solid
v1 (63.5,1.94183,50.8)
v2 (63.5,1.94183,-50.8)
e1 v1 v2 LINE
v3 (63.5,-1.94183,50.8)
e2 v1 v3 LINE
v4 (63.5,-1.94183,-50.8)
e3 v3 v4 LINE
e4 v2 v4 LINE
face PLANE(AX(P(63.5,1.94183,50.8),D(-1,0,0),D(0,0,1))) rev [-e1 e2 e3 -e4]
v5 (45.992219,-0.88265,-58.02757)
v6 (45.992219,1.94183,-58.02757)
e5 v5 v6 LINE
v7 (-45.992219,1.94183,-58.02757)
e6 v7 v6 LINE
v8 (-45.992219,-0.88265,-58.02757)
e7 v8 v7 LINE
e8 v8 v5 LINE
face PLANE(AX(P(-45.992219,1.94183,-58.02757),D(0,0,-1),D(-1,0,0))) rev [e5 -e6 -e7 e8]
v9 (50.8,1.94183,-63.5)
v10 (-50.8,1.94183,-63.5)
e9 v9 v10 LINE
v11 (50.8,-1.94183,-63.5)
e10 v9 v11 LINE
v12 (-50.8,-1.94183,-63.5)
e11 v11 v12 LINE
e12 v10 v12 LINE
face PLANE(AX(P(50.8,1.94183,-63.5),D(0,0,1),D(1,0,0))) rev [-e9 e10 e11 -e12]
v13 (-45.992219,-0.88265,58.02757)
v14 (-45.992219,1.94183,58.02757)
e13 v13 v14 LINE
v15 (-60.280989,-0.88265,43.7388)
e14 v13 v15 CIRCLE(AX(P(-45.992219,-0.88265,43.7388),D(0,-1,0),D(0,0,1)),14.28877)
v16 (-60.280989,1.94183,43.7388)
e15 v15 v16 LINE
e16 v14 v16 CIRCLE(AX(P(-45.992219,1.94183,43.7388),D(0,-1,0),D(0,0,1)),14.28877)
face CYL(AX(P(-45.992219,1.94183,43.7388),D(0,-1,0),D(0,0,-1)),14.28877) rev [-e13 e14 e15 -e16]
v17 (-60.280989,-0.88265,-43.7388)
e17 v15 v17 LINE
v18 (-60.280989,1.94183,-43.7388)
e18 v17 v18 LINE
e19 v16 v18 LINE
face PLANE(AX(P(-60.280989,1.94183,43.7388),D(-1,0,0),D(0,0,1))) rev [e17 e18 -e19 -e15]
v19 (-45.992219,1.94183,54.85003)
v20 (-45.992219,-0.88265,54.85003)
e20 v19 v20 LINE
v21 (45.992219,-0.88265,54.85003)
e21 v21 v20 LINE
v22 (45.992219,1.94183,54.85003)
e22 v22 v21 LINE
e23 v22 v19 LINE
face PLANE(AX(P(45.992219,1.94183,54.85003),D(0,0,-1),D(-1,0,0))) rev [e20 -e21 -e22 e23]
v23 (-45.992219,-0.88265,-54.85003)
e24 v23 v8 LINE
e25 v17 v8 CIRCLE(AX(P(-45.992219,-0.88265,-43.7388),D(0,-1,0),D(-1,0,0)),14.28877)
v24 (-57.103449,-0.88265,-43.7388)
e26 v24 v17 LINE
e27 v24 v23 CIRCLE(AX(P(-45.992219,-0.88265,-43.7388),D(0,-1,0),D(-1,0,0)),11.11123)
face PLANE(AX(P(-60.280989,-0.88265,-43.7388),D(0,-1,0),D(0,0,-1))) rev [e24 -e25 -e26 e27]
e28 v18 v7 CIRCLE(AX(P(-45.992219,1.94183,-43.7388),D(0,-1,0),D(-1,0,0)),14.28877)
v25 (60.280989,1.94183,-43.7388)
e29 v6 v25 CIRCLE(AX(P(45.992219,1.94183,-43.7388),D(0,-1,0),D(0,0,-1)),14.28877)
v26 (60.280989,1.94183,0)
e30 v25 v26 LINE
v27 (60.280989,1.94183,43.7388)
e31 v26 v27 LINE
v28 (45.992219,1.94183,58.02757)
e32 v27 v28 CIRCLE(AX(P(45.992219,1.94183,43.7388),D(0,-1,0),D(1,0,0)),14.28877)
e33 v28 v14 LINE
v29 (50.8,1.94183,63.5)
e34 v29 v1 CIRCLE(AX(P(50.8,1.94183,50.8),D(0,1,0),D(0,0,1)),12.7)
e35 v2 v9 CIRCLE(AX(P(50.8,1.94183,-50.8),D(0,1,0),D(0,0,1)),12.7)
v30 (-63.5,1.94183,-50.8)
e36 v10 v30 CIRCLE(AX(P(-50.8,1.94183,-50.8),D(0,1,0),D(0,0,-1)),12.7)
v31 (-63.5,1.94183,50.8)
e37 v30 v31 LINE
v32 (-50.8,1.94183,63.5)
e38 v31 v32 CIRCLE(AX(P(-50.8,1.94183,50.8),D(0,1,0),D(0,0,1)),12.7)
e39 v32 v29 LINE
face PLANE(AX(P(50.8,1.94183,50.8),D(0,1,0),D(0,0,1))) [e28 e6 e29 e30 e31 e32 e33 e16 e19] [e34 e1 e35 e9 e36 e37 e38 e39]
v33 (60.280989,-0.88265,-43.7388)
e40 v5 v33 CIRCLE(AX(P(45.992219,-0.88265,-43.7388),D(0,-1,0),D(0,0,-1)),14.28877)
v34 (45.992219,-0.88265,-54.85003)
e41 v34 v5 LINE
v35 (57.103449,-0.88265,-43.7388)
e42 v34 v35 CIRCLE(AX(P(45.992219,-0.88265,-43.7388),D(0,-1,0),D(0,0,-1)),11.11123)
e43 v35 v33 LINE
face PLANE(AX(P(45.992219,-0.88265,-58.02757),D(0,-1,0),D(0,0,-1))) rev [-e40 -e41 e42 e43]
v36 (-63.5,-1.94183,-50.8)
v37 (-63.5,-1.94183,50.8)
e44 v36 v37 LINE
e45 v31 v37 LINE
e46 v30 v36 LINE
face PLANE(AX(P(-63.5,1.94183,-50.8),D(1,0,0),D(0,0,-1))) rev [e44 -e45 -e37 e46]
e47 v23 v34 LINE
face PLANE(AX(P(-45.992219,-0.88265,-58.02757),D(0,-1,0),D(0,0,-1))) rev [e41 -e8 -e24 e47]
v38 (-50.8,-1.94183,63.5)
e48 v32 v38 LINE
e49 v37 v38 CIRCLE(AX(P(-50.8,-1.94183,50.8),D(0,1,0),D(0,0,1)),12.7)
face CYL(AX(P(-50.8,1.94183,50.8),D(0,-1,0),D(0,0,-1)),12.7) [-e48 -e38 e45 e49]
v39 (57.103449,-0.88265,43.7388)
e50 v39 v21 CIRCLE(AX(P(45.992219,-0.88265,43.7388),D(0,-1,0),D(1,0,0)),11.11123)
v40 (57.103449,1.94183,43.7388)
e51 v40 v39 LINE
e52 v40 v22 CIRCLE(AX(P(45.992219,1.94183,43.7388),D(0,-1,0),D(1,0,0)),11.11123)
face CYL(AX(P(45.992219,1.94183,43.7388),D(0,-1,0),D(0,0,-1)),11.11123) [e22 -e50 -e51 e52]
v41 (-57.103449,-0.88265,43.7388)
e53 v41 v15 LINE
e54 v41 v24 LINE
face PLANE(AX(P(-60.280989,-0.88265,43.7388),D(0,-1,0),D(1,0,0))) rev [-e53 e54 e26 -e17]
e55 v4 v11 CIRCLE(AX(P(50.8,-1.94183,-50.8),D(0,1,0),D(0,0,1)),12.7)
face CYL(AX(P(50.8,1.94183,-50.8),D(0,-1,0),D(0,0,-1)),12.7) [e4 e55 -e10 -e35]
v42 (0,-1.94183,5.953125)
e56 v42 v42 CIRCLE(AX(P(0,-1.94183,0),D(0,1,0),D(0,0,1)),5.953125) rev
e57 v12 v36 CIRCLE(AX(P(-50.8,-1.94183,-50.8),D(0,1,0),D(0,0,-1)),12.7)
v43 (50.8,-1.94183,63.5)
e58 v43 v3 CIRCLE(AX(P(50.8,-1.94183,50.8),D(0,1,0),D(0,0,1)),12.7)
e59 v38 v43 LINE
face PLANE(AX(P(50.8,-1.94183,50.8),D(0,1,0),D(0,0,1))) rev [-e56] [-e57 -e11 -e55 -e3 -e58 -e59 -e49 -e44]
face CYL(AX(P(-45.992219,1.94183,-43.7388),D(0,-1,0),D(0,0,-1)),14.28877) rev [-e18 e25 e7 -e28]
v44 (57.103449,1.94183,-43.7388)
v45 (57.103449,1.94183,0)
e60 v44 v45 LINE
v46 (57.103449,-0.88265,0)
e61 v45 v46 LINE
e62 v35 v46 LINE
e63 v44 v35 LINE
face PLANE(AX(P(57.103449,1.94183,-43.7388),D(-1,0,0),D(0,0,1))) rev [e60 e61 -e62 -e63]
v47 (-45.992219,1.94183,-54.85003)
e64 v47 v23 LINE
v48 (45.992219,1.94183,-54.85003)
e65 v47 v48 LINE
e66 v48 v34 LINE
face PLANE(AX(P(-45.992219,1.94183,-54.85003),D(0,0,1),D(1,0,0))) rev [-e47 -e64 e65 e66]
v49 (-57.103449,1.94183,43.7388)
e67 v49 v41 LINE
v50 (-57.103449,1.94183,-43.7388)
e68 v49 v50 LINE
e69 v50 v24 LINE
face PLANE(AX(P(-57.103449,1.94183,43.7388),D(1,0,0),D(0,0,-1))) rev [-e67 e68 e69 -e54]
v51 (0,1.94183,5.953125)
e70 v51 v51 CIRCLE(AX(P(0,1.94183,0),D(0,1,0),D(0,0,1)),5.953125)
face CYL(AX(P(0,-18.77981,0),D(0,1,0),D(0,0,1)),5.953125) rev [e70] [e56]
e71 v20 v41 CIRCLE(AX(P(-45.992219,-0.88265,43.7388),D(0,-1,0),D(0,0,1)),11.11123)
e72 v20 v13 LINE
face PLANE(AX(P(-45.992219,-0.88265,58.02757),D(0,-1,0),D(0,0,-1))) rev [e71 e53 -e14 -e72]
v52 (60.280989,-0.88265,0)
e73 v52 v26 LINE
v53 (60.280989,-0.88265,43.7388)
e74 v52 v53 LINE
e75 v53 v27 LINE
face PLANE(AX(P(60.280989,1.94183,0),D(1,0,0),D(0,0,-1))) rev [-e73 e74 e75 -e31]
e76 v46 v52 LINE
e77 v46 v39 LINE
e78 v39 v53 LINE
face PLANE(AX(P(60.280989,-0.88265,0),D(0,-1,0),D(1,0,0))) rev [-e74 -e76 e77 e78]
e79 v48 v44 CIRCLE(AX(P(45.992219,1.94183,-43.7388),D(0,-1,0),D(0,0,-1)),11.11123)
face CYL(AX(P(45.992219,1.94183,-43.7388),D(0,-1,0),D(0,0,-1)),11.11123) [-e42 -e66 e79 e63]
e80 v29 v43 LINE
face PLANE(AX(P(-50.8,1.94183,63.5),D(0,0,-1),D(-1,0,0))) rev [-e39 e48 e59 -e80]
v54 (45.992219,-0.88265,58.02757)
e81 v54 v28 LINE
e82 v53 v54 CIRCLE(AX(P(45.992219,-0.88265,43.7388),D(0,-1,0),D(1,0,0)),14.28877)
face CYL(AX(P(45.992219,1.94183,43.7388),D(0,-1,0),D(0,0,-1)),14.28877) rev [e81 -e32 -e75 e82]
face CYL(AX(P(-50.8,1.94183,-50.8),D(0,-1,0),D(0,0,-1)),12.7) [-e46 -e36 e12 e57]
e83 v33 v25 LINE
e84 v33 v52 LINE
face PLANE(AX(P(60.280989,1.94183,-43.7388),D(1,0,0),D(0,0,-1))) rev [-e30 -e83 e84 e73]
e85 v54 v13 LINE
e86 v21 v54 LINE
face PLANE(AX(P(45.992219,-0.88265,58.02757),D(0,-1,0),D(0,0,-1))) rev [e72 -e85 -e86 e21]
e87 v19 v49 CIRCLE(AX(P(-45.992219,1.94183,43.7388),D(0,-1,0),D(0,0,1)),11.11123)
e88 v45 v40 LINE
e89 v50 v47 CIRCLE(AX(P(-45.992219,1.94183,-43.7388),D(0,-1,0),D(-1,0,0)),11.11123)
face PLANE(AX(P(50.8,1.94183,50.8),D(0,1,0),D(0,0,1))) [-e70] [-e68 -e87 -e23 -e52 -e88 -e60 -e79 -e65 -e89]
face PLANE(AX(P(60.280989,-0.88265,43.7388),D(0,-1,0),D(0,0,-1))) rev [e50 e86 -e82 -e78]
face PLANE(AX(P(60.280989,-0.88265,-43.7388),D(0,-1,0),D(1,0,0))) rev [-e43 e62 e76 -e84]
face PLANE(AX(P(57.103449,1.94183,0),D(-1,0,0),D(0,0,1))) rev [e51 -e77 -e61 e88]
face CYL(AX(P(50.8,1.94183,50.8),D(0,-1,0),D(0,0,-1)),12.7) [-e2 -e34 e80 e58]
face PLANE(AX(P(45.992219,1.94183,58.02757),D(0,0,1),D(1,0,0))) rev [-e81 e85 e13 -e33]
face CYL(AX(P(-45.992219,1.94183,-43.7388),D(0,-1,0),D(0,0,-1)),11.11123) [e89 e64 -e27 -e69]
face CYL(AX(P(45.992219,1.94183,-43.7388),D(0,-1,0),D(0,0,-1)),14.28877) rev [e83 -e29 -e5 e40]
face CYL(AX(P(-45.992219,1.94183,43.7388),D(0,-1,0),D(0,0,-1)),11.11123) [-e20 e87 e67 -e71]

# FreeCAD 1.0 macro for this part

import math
import FreeCAD as App
import Part
import Sketcher

V = App.Vector
Q = App.Units.Quantity

doc = App.newDocument("Part")
body = doc.addObject("PartDesign::Body", "Body")

# Sketch on XZ plane
sketch1 = doc.addObject("Sketcher::SketchObject", "Sketch")
body.addObject(sketch1)
sketch1.AttachmentSupport = (doc.XZ_Plane, [""])
sketch1.MapMode = "FlatFace"
sketch1.addGeometry([
    Part.LineSegment(V(-64, -51, 0), V(-64, 51, 0)),  # 0
    Part.ArcOfCircle(Part.Circle(V(-51, 51, 0), V(0, 0, 1), 13), math.radians(90), math.radians(180)),  # 1
    Part.LineSegment(V(-51, 64, 0), V(51, 64, 0)),  # 2
    Part.ArcOfCircle(Part.Circle(V(51, 51, 0), V(0, 0, 1), 13), math.radians(0), math.radians(90)),  # 3
    Part.LineSegment(V(64, 51, 0), V(64, -51, 0)),  # 4
    Part.ArcOfCircle(Part.Circle(V(51, -51, 0), V(0, 0, 1), 13), math.radians(-90), math.radians(0)),  # 5
    Part.LineSegment(V(51, -64, 0), V(-51, -64, 0)),  # 6
    Part.ArcOfCircle(Part.Circle(V(-51, -51, 0), V(0, 0, 1), 13), math.radians(180), math.radians(270)),  # 7
], False)
sketch1.addConstraint([
    Sketcher.Constraint("Tangent", 0, 2, 1, 2),
    Sketcher.Constraint("Tangent", 1, 1, 2, 1),
    Sketcher.Constraint("Tangent", 2, 2, 3, 2),
    Sketcher.Constraint("Tangent", 3, 1, 4, 1),
    Sketcher.Constraint("Tangent", 4, 2, 5, 2),
    Sketcher.Constraint("Tangent", 5, 1, 6, 1),
    Sketcher.Constraint("Tangent", 6, 2, 7, 2),
    Sketcher.Constraint("Tangent", 7, 1, 0, 1),
    Sketcher.Constraint("Vertical", 0),
    Sketcher.Constraint("Horizontal", 2),
    Sketcher.Constraint("Vertical", 4),
    Sketcher.Constraint("Horizontal", 6),
    Sketcher.Constraint("Equal", 1, 3),
    Sketcher.Constraint("Equal", 3, 5),
    Sketcher.Constraint("Equal", 5, 7),
    Sketcher.Constraint("Symmetric", 1, 3, 5, 3, -1, 1),
    Sketcher.Constraint("Equal", 6, 0),
    Sketcher.Constraint("Radius", 1, Q("0.5 in")),
    Sketcher.Constraint("DistanceX", 2, 1, 2, 2, Q("4 in")),
])
pad1 = doc.addObject("PartDesign::Pad", "Pad")
body.addObject(pad1)
pad1.Profile = sketch1
pad1.Length = Q("0.1529 in")
pad1.Midplane = True

# Sketch on XZ plane
sketch2 = doc.addObject("Sketcher::SketchObject", "Sketch001")
body.addObject(sketch2)
sketch2.AttachmentSupport = (doc.XZ_Plane, [""])
sketch2.MapMode = "FlatFace"
sketch2.AttachmentOffset = App.Placement(V(0, 0, -1.94183), App.Rotation())
sketch2.addGeometry(Part.Circle(V(0, 0, 0), V(0, 0, 1), 6), False)
sketch2.addConstraint([
    Sketcher.Constraint("Coincident", 0, 3, -1, 1),
    Sketcher.Constraint("Diameter", 0, Q("0.46875 in")),
])
pocket1 = doc.addObject("PartDesign::Pocket", "Pocket")
body.addObject(pocket1)
pocket1.Profile = sketch2
pocket1.Length = Q("0.1529 in")
pocket1.Reversed = True

# Sketch on XY plane
sketch3 = doc.addObject("Sketcher::SketchObject", "Sketch002")
body.addObject(sketch3)
sketch3.AttachmentSupport = (doc.XY_Plane, [""])
sketch3.MapMode = "FlatFace"
sketch3.addGeometry([
    Part.LineSegment(V(57.1, 1.9, 0), V(57.1, -0.9, 0)),
    Part.LineSegment(V(57.1, -0.9, 0), V(60.3, -0.9, 0)),
    Part.LineSegment(V(60.3, -0.9, 0), V(60.3, 1.9, 0)),
    Part.LineSegment(V(60.3, 1.9, 0), V(57.1, 1.9, 0)),
], False)
sketch3.addConstraint([
    Sketcher.Constraint("Coincident", 0, 2, 1, 1),
    Sketcher.Constraint("Coincident", 1, 2, 2, 1),
    Sketcher.Constraint("Coincident", 2, 2, 3, 1),
    Sketcher.Constraint("Coincident", 3, 2, 0, 1),
    Sketcher.Constraint("Vertical", 0),
    Sketcher.Constraint("Horizontal", 1),
    Sketcher.Constraint("Vertical", 2),
    Sketcher.Constraint("Horizontal", 3),
    Sketcher.Constraint("DistanceX", 1, 1, 1, 2, Q("0.1251 in")),
    Sketcher.Constraint("DistanceY", 0, 2, 0, 1, Q("0.1112 in")),
    Sketcher.Constraint("DistanceX", -1, 1, 0, 2, 57.103449),
    Sketcher.Constraint("DistanceY", 0, 2, -1, 1, 0.88265),
])

# Sketch on XZ plane
sketch4 = doc.addObject("Sketcher::SketchObject", "Sketch003")
body.addObject(sketch4)
sketch4.AttachmentSupport = (doc.XZ_Plane, [""])
sketch4.MapMode = "FlatFace"
sketch4.AttachmentOffset = App.Placement(V(0, 0, -1.94183), App.Rotation())
sketch4.addGeometry([
    Part.LineSegment(V(-46, 56, 0), V(46, 56, 0)),  # 0
    Part.ArcOfCircle(Part.Circle(V(46, 44, 0), V(0, 0, 1), 13), math.radians(0), math.radians(90)),  # 1
    Part.LineSegment(V(59, 44, 0), V(59, -44, 0)),  # 2
    Part.ArcOfCircle(Part.Circle(V(46, -44, 0), V(0, 0, 1), 13), math.radians(-90), math.radians(0)),  # 3
    Part.LineSegment(V(46, -56, 0), V(-46, -56, 0)),  # 4
    Part.ArcOfCircle(Part.Circle(V(-46, -44, 0), V(0, 0, 1), 13), math.radians(180), math.radians(270)),  # 5
    Part.LineSegment(V(-59, -44, 0), V(-59, 44, 0)),  # 6
    Part.ArcOfCircle(Part.Circle(V(-46, 44, 0), V(0, 0, 1), 13), math.radians(90), math.radians(180)),  # 7
], False)
sketch4.addConstraint([
    Sketcher.Constraint("Tangent", 0, 2, 1, 2),
    Sketcher.Constraint("Tangent", 1, 1, 2, 1),
    Sketcher.Constraint("Tangent", 2, 2, 3, 2),
    Sketcher.Constraint("Tangent", 3, 1, 4, 1),
    Sketcher.Constraint("Tangent", 4, 2, 5, 2),
    Sketcher.Constraint("Tangent", 5, 1, 6, 1),
    Sketcher.Constraint("Tangent", 6, 2, 7, 2),
    Sketcher.Constraint("Tangent", 7, 1, 0, 1),
    Sketcher.Constraint("Horizontal", 0),
    Sketcher.Constraint("Vertical", 2),
    Sketcher.Constraint("Horizontal", 4),
    Sketcher.Constraint("Vertical", 6),
    Sketcher.Constraint("Equal", 1, 3),
    Sketcher.Constraint("Equal", 3, 5),
    Sketcher.Constraint("Equal", 5, 7),
    Sketcher.Constraint("Symmetric", 1, 3, 5, 3, -1, 1),
    Sketcher.Constraint("Radius", 1, Q("0.5 in")),
    Sketcher.Constraint("DistanceY", 2, 2, 2, 1, Q("3.444 in")),
    Sketcher.Constraint("DistanceX", 0, 1, 0, 2, 91.984438),
])
doc.recompute()

subtractivepipe = doc.addObject("PartDesign::SubtractivePipe", "SubtractivePipe")
body.addObject(subtractivepipe)
subtractivepipe.Profile = sketch3
subtractivepipe.Spine = (sketch4, ["Edge1", "Edge2", "Edge3", "Edge4", "Edge5", "Edge6", "Edge7", "Edge8"])

doc.recompute()
